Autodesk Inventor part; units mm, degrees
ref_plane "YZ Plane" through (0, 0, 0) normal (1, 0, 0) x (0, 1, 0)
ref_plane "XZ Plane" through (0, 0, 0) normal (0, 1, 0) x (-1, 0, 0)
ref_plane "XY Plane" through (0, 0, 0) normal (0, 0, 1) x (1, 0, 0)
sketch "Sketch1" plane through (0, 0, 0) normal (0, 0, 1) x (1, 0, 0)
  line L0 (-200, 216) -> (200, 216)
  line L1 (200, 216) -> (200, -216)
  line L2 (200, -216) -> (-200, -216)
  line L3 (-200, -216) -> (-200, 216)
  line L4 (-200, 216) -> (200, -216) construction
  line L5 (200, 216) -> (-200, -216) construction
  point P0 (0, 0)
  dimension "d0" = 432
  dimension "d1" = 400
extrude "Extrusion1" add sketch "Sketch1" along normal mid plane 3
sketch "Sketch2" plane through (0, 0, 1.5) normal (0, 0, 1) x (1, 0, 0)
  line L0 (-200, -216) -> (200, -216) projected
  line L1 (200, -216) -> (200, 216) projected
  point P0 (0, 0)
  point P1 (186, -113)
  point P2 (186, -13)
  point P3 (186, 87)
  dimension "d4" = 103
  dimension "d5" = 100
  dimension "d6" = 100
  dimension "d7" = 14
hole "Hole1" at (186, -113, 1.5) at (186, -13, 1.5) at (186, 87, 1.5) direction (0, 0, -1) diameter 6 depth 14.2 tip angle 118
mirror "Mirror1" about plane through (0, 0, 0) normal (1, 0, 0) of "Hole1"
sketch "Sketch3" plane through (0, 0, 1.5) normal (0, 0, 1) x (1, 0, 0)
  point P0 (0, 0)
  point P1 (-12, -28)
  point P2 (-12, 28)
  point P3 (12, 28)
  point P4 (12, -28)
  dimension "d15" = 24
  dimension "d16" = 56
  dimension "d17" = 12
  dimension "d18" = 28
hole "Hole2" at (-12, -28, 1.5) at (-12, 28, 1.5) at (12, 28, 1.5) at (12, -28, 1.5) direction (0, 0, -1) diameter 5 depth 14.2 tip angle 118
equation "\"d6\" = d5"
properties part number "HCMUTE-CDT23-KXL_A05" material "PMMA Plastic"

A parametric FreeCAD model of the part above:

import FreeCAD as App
import Part
import Sketcher
from FreeCAD import Vector
Q = App.Units.Quantity


def add_polygon(sketch, points):
    """Adds a closed chain of lines whose ends are joined by coincident constraints."""
    first, n = sketch.GeometryCount, len(points)
    for a, b in zip(points, points[1:] + points[:1]):
        sketch.addGeometry(Part.LineSegment(App.Vector(*a, 0), App.Vector(*b, 0)), False)
    for i in range(n):
        sketch.addConstraint(Sketcher.Constraint("Coincident", first + i, 2, first + (i + 1) % n, 1))

doc = App.newDocument("Part")
body = doc.addObject("PartDesign::Body", "Body")

sketch1 = doc.addObject("Sketcher::SketchObject", "Sketch")
body.addObject(sketch1)
sketch1.AttachmentSupport = (doc.XY_Plane, [""])
sketch1.MapMode = "FlatFace"
add_polygon(sketch1, [(200, 216), (-200, 216), (-200, -216), (200, -216)])
sketch1.addConstraint([
    Sketcher.Constraint("Horizontal", 0),
    Sketcher.Constraint("Vertical", 1),
    Sketcher.Constraint("Horizontal", 2),
    Sketcher.Constraint("Vertical", 3),
    Sketcher.Constraint("Symmetric", 0, 2, 2, 2, -1, 1),
    Sketcher.Constraint("DistanceX", 0, 2, 0, 1, Q("400 mm")),
    Sketcher.Constraint("DistanceY", 1, 2, 1, 1, Q("432 mm")),
])
pad1 = doc.addObject("PartDesign::Pad", "Pad")
body.addObject(pad1)
pad1.Profile = sketch1
pad1.Length = 3
pad1.Midplane = True

sketch2 = doc.addObject("Sketcher::SketchObject", "Sketch001")
body.addObject(sketch2)
sketch2.AttachmentSupport = (doc.XY_Plane, [""])
sketch2.MapMode = "FlatFace"
sketch2.AttachmentOffset = App.Placement(Vector(0, 0, 1.5), App.Rotation())
sketch2.addGeometry([
    Part.Circle(Vector(186, -113, 0), Vector(0, 0, 1), 3),
    Part.Circle(Vector(186, -13, 0), Vector(0, 0, 1), 3),
    Part.Circle(Vector(186, 87, 0), Vector(0, 0, 1), 3),
], False)
sketch2.addConstraint([
    Sketcher.Constraint("Equal", 0, 1),
    Sketcher.Constraint("Equal", 1, 2),
    Sketcher.Constraint("Vertical", 0, 3, 1, 3),
    Sketcher.Constraint("Vertical", 1, 3, 2, 3),
    Sketcher.Constraint("Diameter", 0, Q("6 mm")),
    Sketcher.Constraint("DistanceX", -1, 1, 0, 3, Q("186 mm")),
    Sketcher.Constraint("DistanceY", 0, 3, -1, 1, Q("113 mm")),
    Sketcher.Constraint("DistanceY", 1, 3, -1, 1, Q("13 mm")),
    Sketcher.Constraint("DistanceY", -1, 1, 2, 3, Q("87 mm")),
])
doc.recompute()
hole = doc.addObject("PartDesign::Hole", "Hole")
body.addObject(hole)
hole.Profile = sketch2
hole.ThreadType = "None"
hole.Diameter = 6
hole.DepthType = "Dimension"
hole.Depth = 14.2
hole.DrillPoint = "Angled"
hole.DrillPointAngle = 118
doc.recompute()

mirrored = doc.addObject("PartDesign::Mirrored", "Mirrored")
body.addObject(mirrored)
mirrored.Originals = [hole]
mirrored.MirrorPlane = (doc.YZ_Plane, [""])
body.Tip = mirrored

sketch3 = doc.addObject("Sketcher::SketchObject", "Sketch002")
body.addObject(sketch3)
sketch3.AttachmentSupport = (doc.XY_Plane, [""])
sketch3.MapMode = "FlatFace"
sketch3.AttachmentOffset = App.Placement(Vector(0, 0, 1.5), App.Rotation())
sketch3.addGeometry([
    Part.Circle(Vector(-12, -28, 0), Vector(0, 0, 1), 2.5),
    Part.Circle(Vector(-12, 28, 0), Vector(0, 0, 1), 2.5),
    Part.Circle(Vector(12, 28, 0), Vector(0, 0, 1), 2.5),
    Part.Circle(Vector(12, -28, 0), Vector(0, 0, 1), 2.5),
], False)
sketch3.addConstraint([
    Sketcher.Constraint("Equal", 0, 1),
    Sketcher.Constraint("Equal", 1, 2),
    Sketcher.Constraint("Equal", 2, 3),
    Sketcher.Constraint("Symmetric", 0, 3, 2, 3, -1, 1),
    Sketcher.Constraint("Symmetric", 1, 3, 3, 3, -1, 1),
    Sketcher.Constraint("Symmetric", 1, 3, 2, 3, -2),
    Sketcher.Constraint("Diameter", 0, Q("5 mm")),
    Sketcher.Constraint("DistanceX", 0, 3, -1, 1, Q("12 mm")),
    Sketcher.Constraint("DistanceY", 0, 3, -1, 1, Q("28 mm")),
])
doc.recompute()
hole2 = doc.addObject("PartDesign::Hole", "Hole001")
body.addObject(hole2)
hole2.Profile = sketch3
hole2.ThreadType = "None"
hole2.Diameter = 5
hole2.DepthType = "Dimension"
hole2.Depth = 14.2
hole2.DrillPoint = "Angled"
hole2.DrillPointAngle = 118

doc.recompute()
